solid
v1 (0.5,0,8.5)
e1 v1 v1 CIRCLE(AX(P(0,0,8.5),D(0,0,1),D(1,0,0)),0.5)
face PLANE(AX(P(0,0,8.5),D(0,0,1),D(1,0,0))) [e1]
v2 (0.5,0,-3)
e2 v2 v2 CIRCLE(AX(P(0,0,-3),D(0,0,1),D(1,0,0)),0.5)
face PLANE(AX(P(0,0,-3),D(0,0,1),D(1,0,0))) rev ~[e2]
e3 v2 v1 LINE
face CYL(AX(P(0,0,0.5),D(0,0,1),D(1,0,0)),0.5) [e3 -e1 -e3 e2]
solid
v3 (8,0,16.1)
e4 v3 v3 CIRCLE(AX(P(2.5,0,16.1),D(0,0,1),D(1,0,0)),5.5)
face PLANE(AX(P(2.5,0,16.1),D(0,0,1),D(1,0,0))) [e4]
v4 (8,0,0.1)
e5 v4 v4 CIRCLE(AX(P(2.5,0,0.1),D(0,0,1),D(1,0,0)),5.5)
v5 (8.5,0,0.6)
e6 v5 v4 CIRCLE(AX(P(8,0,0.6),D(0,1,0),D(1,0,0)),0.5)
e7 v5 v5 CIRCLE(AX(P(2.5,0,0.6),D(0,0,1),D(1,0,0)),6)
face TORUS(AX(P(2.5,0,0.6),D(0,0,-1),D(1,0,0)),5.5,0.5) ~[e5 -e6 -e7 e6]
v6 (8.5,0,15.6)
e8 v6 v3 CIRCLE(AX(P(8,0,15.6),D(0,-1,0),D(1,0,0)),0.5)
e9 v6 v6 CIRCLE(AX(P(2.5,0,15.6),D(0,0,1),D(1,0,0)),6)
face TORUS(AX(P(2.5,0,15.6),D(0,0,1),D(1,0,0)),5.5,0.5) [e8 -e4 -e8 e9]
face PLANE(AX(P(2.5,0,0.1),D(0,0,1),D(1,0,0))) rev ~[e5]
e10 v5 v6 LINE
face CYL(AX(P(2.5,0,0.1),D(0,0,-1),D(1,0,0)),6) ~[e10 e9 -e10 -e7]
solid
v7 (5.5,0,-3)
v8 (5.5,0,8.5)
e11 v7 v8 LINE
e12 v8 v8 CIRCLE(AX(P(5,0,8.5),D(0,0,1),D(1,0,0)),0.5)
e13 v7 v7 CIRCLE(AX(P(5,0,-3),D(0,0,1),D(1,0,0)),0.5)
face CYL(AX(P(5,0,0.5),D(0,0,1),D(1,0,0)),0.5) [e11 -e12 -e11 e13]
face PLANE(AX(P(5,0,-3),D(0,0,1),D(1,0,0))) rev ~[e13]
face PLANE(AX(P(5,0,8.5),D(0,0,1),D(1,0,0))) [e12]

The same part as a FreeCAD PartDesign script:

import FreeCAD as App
import Part
import Sketcher
from FreeCAD import Vector


def edges_at(feature, points):
    """Names of the edges that pass closest to the given points."""
    edges = feature.Shape.Edges
    near = lambda p: min(range(len(edges)), key=lambda i: edges[i].distToShape(Part.Vertex(*p))[0])
    return sorted({f"Edge{near(p) + 1}" for p in points})

doc = App.newDocument("Part")
body = doc.addObject("PartDesign::Body", "Body")
body.AllowCompound = True

sketch1 = body.newObject("Sketcher::SketchObject", "Sketch")
sketch1.AttachmentSupport = (doc.getObject("XY_Plane"), [""])
sketch1.MapMode = "FlatFace"
sketch1.AttachmentOffset = App.Placement(Vector(0, 0, 0.5), App.Rotation())
sketch1.addGeometry(Part.Circle(Vector(0, 0, 0), Vector(0, 0, 1), 0.5), False)
sketch1.addGeometry(Part.Circle(Vector(5, 0, 0), Vector(0, 0, 1), 0.5), False)
sketch1.addConstraint(Sketcher.Constraint("Coincident", 0, 3, -1, 1))
sketch1.addConstraint(Sketcher.Constraint("Equal", 0, 1))
sketch1.addConstraint(Sketcher.Constraint("PointOnObject", 1, 3, -1))
sketch1.addConstraint(Sketcher.Constraint("Diameter", 0, 1.0))
sketch1.addConstraint(Sketcher.Constraint("DistanceX", -1, 1, 1, 3, 5.0))
pad1 = body.newObject("PartDesign::Pad", "Pad")
pad1.Profile = sketch1
pad1.Type = "TwoLengths"
pad1.Length = 8
pad1.Length2 = 3.5
body2 = doc.addObject("PartDesign::Body", "Body001")

sketch2 = body2.newObject("Sketcher::SketchObject", "Sketch001")
sketch2.AttachmentSupport = (doc.getObject("XY_Plane001"), [""])
sketch2.MapMode = "FlatFace"
sketch2.AttachmentOffset = App.Placement(Vector(0, 0, 0.1), App.Rotation())
sketch2.addGeometry(Part.Circle(Vector(2, 0, 0), Vector(0, 0, 1), 6), False)
sketch2.addConstraint(Sketcher.Constraint("PointOnObject", 0, 3, -1))
sketch2.addConstraint(Sketcher.Constraint("Diameter", 0, 12.0))
sketch2.addConstraint(Sketcher.Constraint("DistanceX", -1, 1, 0, 3, 2.5))
pad2 = body2.newObject("PartDesign::Pad", "Pad001")
pad2.Profile = sketch2
pad2.Length = 16
doc.recompute()

fillet = body2.newObject("PartDesign::Fillet", "Fillet")
fillet.Base = (pad2, edges_at(pad2, [(-3.5, 0, 0.1), (-3.5, 0, 16.1)]))
fillet.Radius = 0.5

doc.recompute()
